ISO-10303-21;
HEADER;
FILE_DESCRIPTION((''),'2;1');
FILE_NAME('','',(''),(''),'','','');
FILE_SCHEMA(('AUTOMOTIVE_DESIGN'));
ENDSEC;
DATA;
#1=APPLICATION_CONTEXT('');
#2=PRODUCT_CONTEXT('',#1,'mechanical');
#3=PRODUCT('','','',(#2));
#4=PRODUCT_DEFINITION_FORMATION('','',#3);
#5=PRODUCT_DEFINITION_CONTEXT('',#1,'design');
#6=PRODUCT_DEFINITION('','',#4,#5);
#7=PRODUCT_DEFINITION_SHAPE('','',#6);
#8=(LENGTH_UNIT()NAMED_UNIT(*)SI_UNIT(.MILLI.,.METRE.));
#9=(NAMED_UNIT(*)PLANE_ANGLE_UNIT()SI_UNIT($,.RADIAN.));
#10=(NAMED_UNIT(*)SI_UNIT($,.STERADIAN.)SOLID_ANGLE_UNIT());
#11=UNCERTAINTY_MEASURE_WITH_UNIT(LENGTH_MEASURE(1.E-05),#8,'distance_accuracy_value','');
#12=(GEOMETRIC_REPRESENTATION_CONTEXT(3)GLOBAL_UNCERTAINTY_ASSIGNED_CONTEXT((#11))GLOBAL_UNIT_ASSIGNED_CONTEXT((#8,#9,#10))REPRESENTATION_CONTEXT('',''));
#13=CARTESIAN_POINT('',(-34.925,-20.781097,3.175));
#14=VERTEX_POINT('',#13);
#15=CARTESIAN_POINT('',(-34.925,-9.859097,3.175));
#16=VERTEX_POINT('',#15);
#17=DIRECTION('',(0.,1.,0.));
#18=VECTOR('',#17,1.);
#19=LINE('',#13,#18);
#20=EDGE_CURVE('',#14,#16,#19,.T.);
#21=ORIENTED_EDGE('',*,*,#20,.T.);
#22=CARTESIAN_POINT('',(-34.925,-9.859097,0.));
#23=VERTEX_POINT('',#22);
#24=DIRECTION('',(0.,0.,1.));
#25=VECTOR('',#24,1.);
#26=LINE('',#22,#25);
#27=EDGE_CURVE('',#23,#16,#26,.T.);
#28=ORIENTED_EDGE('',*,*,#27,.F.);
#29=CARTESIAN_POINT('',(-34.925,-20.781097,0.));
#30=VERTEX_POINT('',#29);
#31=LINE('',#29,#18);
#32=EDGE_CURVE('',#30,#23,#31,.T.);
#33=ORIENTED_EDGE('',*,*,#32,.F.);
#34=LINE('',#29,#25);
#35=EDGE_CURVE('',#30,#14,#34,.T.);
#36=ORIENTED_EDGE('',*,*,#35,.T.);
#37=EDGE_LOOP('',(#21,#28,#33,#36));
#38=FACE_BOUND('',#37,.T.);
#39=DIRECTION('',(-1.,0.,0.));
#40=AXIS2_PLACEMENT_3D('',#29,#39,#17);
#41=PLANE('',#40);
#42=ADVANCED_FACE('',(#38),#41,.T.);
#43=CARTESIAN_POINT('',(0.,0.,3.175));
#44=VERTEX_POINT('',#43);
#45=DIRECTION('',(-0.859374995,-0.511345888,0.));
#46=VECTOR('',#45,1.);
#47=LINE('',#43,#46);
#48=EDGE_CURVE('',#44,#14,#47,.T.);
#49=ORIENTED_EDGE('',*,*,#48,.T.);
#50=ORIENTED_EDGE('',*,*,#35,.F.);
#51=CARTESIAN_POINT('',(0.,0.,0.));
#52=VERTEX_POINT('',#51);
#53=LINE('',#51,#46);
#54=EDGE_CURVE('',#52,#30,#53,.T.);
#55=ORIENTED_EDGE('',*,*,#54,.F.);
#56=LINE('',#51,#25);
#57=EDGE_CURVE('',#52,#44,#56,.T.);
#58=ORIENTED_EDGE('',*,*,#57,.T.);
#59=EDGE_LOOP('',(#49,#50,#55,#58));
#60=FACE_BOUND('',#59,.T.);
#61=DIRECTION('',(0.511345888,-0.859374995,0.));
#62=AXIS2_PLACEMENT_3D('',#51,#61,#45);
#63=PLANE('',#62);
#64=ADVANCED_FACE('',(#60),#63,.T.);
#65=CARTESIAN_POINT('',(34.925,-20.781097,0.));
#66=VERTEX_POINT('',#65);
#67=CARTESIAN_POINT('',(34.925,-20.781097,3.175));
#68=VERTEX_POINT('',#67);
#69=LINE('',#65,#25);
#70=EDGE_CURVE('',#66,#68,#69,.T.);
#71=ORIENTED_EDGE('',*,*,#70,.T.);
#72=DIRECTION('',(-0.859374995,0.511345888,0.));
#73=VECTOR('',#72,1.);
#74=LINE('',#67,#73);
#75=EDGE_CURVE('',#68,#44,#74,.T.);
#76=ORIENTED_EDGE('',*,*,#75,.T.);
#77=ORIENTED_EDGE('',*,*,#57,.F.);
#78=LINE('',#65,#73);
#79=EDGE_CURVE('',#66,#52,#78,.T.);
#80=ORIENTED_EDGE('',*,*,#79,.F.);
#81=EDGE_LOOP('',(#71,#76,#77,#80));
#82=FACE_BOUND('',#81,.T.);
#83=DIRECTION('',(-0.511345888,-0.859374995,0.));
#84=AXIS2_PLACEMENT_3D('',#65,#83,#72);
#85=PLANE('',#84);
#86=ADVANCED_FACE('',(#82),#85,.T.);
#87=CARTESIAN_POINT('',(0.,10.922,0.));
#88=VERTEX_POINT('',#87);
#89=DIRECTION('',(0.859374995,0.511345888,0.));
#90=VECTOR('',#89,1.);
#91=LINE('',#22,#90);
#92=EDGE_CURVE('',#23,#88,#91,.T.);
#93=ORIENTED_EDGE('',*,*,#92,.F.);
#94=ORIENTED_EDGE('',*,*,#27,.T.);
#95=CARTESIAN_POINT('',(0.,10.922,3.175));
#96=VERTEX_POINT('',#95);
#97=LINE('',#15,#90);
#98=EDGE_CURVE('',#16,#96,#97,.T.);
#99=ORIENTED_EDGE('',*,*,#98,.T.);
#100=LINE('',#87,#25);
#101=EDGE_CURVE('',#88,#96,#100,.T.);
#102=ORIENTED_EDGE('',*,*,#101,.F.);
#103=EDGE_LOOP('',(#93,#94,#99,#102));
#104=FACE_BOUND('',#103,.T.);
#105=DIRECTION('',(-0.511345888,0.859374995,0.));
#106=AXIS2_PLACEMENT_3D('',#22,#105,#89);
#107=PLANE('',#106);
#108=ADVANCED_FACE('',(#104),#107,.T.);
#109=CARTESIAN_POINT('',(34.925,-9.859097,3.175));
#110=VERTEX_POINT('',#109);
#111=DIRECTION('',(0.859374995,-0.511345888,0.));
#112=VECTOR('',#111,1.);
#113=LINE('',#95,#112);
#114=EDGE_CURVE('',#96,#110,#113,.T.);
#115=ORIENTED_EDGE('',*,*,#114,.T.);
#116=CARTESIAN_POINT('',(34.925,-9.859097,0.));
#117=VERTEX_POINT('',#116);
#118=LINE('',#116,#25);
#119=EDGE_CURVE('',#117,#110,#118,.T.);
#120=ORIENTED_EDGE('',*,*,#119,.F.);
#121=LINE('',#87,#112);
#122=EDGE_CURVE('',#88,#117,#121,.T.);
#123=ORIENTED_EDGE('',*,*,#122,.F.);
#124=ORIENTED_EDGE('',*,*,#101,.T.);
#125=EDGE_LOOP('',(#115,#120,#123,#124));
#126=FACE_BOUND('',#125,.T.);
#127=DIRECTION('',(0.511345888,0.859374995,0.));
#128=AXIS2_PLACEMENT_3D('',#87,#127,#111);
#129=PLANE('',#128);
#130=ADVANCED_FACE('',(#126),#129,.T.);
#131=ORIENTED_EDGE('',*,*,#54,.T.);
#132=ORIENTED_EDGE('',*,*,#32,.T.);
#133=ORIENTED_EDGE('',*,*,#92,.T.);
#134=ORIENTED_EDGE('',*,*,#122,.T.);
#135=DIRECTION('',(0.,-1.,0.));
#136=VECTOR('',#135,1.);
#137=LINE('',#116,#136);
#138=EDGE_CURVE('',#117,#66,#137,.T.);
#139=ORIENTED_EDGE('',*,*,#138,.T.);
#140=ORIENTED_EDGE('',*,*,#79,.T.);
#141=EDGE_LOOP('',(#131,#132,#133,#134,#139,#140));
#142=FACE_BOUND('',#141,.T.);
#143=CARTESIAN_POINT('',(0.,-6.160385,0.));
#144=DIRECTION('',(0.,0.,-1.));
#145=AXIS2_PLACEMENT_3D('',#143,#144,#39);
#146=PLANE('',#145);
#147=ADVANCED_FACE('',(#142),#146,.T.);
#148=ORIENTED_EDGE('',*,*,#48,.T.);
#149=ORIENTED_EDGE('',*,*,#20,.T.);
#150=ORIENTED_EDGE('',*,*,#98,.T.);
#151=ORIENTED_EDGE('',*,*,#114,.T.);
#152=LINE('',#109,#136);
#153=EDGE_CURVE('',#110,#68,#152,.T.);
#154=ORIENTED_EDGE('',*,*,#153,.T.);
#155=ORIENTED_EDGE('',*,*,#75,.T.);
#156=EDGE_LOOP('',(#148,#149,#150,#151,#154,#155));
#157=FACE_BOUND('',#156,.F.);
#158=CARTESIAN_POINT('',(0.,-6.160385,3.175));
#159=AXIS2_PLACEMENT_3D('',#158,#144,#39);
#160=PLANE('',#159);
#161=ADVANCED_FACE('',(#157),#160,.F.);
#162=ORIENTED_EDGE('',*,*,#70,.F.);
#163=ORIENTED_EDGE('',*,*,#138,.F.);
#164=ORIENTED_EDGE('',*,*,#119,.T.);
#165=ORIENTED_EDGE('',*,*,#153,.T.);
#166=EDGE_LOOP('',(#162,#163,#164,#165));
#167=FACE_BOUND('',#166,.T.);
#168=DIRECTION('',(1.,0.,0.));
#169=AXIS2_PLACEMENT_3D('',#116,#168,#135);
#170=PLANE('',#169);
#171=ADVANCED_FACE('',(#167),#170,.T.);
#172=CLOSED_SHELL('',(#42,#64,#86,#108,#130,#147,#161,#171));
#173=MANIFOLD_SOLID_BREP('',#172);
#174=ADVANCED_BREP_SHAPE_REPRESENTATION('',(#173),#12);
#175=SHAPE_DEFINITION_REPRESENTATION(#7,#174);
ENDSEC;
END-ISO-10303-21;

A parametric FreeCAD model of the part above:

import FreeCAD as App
import Part
import Sketcher
from FreeCAD import Vector
Q = App.Units.Quantity

doc = App.newDocument("Part")
body = doc.addObject("PartDesign::Body", "Body")

sketch1 = body.newObject("Sketcher::SketchObject", "Sketch")
sketch1.AttachmentSupport = (doc.getObject("XY_Plane"), [""])
sketch1.MapMode = "FlatFace"
sketch1.addGeometry(Part.LineSegment(Vector(-35, -21, 0), Vector(0, 0, 0)), False)
sketch1.addGeometry(Part.LineSegment(Vector(0, 0, 0), Vector(35, -21, 0)), False)
sketch1.addGeometry(Part.LineSegment(Vector(35, -21, 0), Vector(35, -10, 0)), False)
sketch1.addGeometry(Part.LineSegment(Vector(35, -10, 0), Vector(0, 11, 0)), False)
sketch1.addGeometry(Part.LineSegment(Vector(0, 11, 0), Vector(-35, -10, 0)), False)
sketch1.addGeometry(Part.LineSegment(Vector(-35, -10, 0), Vector(-35, -21, 0)), False)
sketch1.addConstraint(Sketcher.Constraint("Coincident", 0, 2, 1, 1))
sketch1.addConstraint(Sketcher.Constraint("Coincident", 1, 2, 2, 1))
sketch1.addConstraint(Sketcher.Constraint("Coincident", 2, 2, 3, 1))
sketch1.addConstraint(Sketcher.Constraint("Coincident", 3, 2, 4, 1))
sketch1.addConstraint(Sketcher.Constraint("Coincident", 4, 2, 5, 1))
sketch1.addConstraint(Sketcher.Constraint("Coincident", 5, 2, 0, 1))
sketch1.addConstraint(Sketcher.Constraint("Vertical", 2))
sketch1.addConstraint(Sketcher.Constraint("Vertical", 5))
sketch1.addConstraint(Sketcher.Constraint("Coincident", 0, 2, -1, 1))
sketch1.addConstraint(Sketcher.Constraint("Symmetric", 2, 2, 4, 2, -2))
sketch1.addConstraint(Sketcher.Constraint("PointOnObject", 3, 2, -2))
sketch1.addConstraint(Sketcher.Constraint("Parallel", 1, 3))
sketch1.addConstraint(Sketcher.Constraint("Parallel", 0, 4))
sketch1.addConstraint(Sketcher.Constraint("Distance", 0, Q("1.6 in")))
sketch1.addConstraint(Sketcher.Constraint("DistanceY", 2, 1, 2, 2, Q("0.43 in")))
sketch1.addConstraint(Sketcher.Constraint("DistanceX", 4, 2, 2, 2, Q("2.75 in")))
pad1 = body.newObject("PartDesign::Pad", "Pad")
pad1.Profile = sketch1
pad1.Length = Q("0.125 in")

doc.recompute()
